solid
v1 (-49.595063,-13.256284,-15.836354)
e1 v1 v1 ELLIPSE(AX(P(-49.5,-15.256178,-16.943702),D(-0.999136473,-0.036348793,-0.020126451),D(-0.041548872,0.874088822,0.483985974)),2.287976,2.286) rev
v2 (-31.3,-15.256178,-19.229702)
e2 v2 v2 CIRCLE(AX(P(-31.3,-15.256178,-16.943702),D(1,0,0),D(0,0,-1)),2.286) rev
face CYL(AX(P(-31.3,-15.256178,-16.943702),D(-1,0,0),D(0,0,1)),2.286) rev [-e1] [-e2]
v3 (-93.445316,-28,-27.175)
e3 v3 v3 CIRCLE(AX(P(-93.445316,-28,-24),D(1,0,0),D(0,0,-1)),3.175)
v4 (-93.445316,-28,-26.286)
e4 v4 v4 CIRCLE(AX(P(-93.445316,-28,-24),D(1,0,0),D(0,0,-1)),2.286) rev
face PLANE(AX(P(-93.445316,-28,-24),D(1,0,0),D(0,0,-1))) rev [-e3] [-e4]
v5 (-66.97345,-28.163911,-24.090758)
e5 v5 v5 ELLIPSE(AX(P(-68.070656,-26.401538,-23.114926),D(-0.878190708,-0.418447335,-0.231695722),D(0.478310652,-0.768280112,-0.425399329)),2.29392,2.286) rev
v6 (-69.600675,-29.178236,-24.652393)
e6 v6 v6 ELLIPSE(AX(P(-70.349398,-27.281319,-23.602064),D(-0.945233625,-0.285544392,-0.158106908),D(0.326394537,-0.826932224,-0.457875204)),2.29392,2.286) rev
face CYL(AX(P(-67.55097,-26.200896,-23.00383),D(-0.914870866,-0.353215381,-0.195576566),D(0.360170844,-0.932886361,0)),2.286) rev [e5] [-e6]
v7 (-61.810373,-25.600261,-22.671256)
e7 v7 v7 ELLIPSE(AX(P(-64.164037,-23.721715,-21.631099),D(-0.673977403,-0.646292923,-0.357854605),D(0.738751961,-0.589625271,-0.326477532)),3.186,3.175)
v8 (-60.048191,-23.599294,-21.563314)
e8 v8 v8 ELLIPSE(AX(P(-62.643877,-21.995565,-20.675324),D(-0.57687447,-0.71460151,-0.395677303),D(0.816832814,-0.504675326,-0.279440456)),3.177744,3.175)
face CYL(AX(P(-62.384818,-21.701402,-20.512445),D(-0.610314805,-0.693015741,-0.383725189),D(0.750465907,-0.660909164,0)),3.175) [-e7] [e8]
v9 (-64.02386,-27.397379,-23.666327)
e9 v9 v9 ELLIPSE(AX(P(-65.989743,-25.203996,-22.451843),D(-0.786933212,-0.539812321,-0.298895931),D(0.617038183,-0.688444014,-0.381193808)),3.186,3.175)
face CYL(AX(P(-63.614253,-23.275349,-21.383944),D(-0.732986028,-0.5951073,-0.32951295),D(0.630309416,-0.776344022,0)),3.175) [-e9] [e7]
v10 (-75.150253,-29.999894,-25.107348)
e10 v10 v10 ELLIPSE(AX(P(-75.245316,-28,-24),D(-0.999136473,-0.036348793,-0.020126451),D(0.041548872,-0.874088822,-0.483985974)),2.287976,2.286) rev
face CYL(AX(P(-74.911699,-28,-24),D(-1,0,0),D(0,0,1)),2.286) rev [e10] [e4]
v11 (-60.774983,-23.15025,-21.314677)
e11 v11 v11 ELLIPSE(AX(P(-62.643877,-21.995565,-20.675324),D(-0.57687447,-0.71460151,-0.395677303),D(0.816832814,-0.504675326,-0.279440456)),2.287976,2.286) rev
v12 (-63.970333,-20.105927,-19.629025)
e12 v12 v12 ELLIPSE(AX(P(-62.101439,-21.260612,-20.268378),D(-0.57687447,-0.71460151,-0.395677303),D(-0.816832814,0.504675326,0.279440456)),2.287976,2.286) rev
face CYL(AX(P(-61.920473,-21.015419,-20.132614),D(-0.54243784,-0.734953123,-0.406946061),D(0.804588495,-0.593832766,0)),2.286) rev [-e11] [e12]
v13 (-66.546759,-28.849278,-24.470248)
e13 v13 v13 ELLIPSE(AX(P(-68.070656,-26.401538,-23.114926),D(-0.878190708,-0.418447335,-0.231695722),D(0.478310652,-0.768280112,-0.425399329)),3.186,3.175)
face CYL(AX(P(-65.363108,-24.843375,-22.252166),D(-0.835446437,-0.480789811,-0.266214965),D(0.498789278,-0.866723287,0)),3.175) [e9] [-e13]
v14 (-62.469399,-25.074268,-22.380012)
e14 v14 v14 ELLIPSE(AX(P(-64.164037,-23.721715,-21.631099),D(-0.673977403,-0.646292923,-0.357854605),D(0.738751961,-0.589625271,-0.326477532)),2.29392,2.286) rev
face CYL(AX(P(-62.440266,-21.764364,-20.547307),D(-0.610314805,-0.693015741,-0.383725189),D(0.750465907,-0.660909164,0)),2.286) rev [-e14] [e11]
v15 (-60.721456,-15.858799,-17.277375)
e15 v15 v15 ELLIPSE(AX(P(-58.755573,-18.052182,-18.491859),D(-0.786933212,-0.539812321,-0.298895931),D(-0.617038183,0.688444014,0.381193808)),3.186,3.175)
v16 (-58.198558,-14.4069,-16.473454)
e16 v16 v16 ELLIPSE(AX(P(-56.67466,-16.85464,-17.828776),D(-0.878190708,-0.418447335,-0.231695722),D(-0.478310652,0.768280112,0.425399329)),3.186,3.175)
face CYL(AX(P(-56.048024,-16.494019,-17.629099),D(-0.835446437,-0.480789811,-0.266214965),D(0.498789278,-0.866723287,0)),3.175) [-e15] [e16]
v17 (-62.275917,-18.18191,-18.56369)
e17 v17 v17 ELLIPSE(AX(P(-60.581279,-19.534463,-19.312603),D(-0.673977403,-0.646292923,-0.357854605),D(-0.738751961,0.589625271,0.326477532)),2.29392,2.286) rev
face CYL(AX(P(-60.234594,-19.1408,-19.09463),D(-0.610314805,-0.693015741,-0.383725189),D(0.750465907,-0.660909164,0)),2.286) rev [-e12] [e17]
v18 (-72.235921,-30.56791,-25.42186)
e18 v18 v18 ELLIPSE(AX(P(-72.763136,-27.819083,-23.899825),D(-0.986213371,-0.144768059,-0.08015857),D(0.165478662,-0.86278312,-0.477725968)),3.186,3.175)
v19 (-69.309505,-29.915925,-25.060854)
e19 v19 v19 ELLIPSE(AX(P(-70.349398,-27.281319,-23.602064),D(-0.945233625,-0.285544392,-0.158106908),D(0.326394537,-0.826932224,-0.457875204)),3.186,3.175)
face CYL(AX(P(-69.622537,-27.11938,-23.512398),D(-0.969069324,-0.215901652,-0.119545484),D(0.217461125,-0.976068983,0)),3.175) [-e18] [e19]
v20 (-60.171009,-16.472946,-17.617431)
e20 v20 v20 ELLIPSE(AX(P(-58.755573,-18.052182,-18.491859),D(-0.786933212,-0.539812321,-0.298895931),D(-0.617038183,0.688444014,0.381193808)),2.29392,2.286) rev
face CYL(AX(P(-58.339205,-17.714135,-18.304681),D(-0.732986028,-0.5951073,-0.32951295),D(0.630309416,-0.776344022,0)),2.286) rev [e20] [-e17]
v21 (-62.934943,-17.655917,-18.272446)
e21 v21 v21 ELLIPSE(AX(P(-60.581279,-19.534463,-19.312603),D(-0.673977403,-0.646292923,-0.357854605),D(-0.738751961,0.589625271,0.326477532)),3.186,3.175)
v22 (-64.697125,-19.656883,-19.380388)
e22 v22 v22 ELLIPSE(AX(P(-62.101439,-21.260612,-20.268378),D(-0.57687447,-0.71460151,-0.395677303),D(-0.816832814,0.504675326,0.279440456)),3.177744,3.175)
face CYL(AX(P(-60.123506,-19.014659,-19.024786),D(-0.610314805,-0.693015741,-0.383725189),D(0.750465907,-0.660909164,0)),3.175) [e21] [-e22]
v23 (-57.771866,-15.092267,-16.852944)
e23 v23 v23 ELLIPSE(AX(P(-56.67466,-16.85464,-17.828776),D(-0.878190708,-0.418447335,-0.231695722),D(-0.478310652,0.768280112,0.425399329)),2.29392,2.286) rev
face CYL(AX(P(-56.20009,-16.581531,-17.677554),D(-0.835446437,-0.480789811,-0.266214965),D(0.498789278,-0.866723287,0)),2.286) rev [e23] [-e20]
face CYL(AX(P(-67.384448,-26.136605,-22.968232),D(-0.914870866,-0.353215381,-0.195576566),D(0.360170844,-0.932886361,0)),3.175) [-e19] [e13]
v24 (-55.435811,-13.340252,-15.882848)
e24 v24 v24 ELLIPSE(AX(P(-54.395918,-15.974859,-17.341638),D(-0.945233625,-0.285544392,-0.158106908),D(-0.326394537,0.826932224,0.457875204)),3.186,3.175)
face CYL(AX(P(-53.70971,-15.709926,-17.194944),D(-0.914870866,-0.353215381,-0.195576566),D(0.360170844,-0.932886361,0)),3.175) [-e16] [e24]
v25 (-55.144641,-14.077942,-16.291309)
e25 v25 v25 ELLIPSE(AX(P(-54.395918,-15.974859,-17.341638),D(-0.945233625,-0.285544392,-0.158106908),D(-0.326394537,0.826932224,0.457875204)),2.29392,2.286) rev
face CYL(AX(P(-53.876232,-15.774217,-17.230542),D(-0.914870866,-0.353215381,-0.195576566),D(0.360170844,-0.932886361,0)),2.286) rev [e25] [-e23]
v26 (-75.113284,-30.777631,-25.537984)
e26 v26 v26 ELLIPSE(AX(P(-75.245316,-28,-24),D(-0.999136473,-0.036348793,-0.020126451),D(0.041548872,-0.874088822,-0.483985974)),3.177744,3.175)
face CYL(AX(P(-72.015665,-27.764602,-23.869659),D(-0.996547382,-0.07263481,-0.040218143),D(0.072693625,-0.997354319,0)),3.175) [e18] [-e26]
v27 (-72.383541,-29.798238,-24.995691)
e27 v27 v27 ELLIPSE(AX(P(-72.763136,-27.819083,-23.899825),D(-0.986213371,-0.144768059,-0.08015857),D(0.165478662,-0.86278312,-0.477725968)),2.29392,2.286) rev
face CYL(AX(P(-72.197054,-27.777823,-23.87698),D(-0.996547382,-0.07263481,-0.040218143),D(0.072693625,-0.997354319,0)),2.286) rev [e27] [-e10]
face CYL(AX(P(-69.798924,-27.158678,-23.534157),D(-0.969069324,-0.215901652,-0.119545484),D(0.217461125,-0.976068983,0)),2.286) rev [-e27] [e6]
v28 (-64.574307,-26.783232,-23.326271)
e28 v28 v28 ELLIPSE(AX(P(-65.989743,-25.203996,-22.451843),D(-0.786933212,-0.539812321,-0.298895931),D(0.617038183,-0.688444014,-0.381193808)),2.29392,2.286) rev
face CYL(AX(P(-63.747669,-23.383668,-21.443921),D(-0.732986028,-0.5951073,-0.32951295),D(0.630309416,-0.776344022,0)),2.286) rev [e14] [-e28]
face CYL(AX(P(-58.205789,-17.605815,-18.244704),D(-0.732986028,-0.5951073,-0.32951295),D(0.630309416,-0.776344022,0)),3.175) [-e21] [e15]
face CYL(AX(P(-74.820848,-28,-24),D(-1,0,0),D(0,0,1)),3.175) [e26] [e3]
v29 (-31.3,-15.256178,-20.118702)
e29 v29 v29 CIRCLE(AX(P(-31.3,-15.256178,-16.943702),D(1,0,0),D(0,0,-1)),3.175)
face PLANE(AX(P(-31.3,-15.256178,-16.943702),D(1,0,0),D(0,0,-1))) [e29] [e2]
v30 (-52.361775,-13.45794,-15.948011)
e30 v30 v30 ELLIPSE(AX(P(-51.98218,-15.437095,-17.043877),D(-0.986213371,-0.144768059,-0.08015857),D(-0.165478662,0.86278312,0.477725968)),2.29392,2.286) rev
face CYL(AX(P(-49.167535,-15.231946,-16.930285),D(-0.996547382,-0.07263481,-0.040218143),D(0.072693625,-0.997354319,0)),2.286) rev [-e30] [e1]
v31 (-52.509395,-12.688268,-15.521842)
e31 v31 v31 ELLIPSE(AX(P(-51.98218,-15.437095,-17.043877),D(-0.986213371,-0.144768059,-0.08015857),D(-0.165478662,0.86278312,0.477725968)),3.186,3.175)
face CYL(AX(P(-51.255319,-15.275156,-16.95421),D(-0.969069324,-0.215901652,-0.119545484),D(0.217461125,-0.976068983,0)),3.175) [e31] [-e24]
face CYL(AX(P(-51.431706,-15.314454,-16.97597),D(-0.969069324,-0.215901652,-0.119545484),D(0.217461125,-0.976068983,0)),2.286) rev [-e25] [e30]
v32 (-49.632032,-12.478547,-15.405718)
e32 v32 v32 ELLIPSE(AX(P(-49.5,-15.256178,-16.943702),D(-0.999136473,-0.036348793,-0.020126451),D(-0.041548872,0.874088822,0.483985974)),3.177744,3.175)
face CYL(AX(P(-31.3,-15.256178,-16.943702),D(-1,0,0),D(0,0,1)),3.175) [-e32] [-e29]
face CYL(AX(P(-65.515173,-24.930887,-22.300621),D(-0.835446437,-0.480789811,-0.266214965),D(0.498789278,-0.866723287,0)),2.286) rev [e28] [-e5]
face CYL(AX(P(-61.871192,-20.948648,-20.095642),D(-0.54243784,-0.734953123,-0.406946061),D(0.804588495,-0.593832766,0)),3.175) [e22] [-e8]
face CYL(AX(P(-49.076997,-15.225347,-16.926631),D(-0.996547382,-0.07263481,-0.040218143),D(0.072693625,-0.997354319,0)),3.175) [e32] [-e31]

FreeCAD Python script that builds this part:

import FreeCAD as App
import Part
import Sketcher
from FreeCAD import Vector
Q = App.Units.Quantity

doc = App.newDocument("Part")
body = doc.addObject("PartDesign::Body", "Body")

# Sketch on YZ plane
sketch1 = body.newObject("Sketcher::SketchObject", "Sketch")
sketch1.AttachmentSupport = (doc.getObject("YZ_Plane"), [""])
sketch1.MapMode = "FlatFace"
sketch1.AttachmentOffset = App.Placement(Vector(0, 0, -31.3), App.Rotation())
sketch1.addGeometry([
    Part.Circle(Vector(-15.3, -16.9, 0), Vector(0, 0, 1), 3.2),
    Part.Circle(Vector(-15.3, -16.9, 0), Vector(0, 0, 1), 2.3),
], False)
sketch1.addConstraint([
    Sketcher.Constraint("Coincident", 1, 3, 0, 3),
    Sketcher.Constraint("Diameter", 0, Q("6.35 mm")),
    Sketcher.Constraint("Diameter", 1, Q("4.572 mm")),
    Sketcher.Constraint("DistanceX", 0, 3, -1, 1, Q("15.256178 mm")),
    Sketcher.Constraint("DistanceY", 0, 3, -1, 1, Q("16.943702 mm")),
])

# Sketch on an angled plane
sketch2 = body.newObject("Sketcher::SketchObject", "Sketch001")
sketch2.Placement = App.Placement(Vector(0, 3.600549, -6.502668), App.Rotation(Vector(0, -0.874844274, -0.48440427), Vector(1.000000001, 0, 0), Vector(0, -0.48440427, 0.874844274), "ZXY"))
sketch2.addGeometry([
    Part.LineSegment(Vector(21.6, -31.3, 0), Vector(21.6, -49.5, 0)),  # 0
    Part.LineSegment(Vector(21.6, -49.5, 0), Vector(21.8, -52, 0)),  # 1
    Part.LineSegment(Vector(21.8, -52, 0), Vector(22.4, -54.4, 0)),  # 2
    Part.LineSegment(Vector(22.4, -54.4, 0), Vector(23.4, -56.7, 0)),  # 3
    Part.LineSegment(Vector(23.4, -56.7, 0), Vector(24.8, -58.8, 0)),  # 4
    Part.LineSegment(Vector(24.8, -58.8, 0), Vector(26.4, -60.6, 0)),  # 5
    Part.LineSegment(Vector(26.4, -60.6, 0), Vector(28.4, -62.1, 0)),  # 6
    Part.LineSegment(Vector(28.4, -62.1, 0), Vector(29.3, -62.6, 0)),  # 7
    Part.LineSegment(Vector(29.3, -62.6, 0), Vector(31.2, -64.2, 0)),  # 8
    Part.LineSegment(Vector(31.2, -64.2, 0), Vector(32.9, -66, 0)),  # 9
    Part.LineSegment(Vector(32.9, -66, 0), Vector(34.3, -68.1, 0)),  # 10
    Part.LineSegment(Vector(34.3, -68.1, 0), Vector(35.3, -70.3, 0)),  # 11
    Part.LineSegment(Vector(35.3, -70.3, 0), Vector(35.9, -72.8, 0)),  # 12
    Part.LineSegment(Vector(35.9, -72.8, 0), Vector(36.1, -75.2, 0)),  # 13
    Part.LineSegment(Vector(36.1, -75.2, 0), Vector(36.1, -93.4, 0)),  # 14
], False)
sketch2.addConstraint([
    Sketcher.Constraint("Coincident", 0, 2, 1, 1),
    Sketcher.Constraint("Coincident", 1, 2, 2, 1),
    Sketcher.Constraint("Coincident", 2, 2, 3, 1),
    Sketcher.Constraint("Coincident", 3, 2, 4, 1),
    Sketcher.Constraint("Coincident", 4, 2, 5, 1),
    Sketcher.Constraint("Coincident", 5, 2, 6, 1),
    Sketcher.Constraint("Coincident", 6, 2, 7, 1),
    Sketcher.Constraint("Coincident", 7, 2, 8, 1),
    Sketcher.Constraint("Coincident", 8, 2, 9, 1),
    Sketcher.Constraint("Coincident", 9, 2, 10, 1),
    Sketcher.Constraint("Coincident", 10, 2, 11, 1),
    Sketcher.Constraint("Coincident", 11, 2, 12, 1),
    Sketcher.Constraint("Coincident", 12, 2, 13, 1),
    Sketcher.Constraint("Coincident", 13, 2, 14, 1),
    Sketcher.Constraint("Vertical", 0),
    Sketcher.Constraint("Vertical", 14),
    Sketcher.Constraint("Parallel", 6, 8),
    Sketcher.Constraint("Parallel", 5, 9),
    Sketcher.Constraint("Parallel", 4, 10),
    Sketcher.Constraint("Parallel", 3, 11),
    Sketcher.Constraint("Parallel", 2, 12),
    Sketcher.Constraint("Parallel", 1, 13),
    Sketcher.Constraint("Equal", 0, 14),
    Sketcher.Constraint("Equal", 1, 2),
    Sketcher.Constraint("Equal", 2, 3),
    Sketcher.Constraint("Equal", 3, 4),
    Sketcher.Constraint("Equal", 4, 5),
    Sketcher.Constraint("Equal", 5, 6),
    Sketcher.Constraint("Equal", 6, 8),
    Sketcher.Constraint("Equal", 8, 9),
    Sketcher.Constraint("Equal", 9, 10),
    Sketcher.Constraint("Equal", 10, 11),
    Sketcher.Constraint("Equal", 11, 12),
    Sketcher.Constraint("Equal", 12, 13),
    Sketcher.Constraint("Distance", 7, Q("1 mm")),
    Sketcher.Constraint("DistanceY", 0, 2, 0, 1, Q("18.2 mm")),
    Sketcher.Constraint("DistanceY", 0, 1, -1, 1, Q("31.3 mm")),
    Sketcher.Constraint("DistanceX", 0, 2, 4, 2, Q("3.196002 mm")),
    Sketcher.Constraint("DistanceY", 11, 2, -1, 1, Q("70.349398 mm")),
    Sketcher.Constraint("DistanceX", 0, 2, 1, 2, Q("0.206799 mm")),
    Sketcher.Constraint("DistanceX", 3, 2, 5, 2, Q("3.0632 mm")),
    Sketcher.Constraint("DistanceY", 5, 2, 1, 2, Q("8.5991 mm")),
    Sketcher.Constraint("Distance", 1, Q("2.49078 mm")),
    Sketcher.Constraint("DistanceX", -1, 1, 0, 1, Q("21.554381 mm")),
    Sketcher.Constraint("DistanceY", 2, 2, -1, 1, Q("54.395918 mm")),
    Sketcher.Constraint("DistanceY", 6, 2, -1, 1, Q("62.101439 mm")),
])
doc.recompute()

additivepipe = body.newObject("PartDesign::AdditivePipe", "AdditivePipe")
additivepipe.Profile = sketch1
additivepipe.Spine = (sketch2, ["Edge1", "Edge2", "Edge3", "Edge4", "Edge5", "Edge6", "Edge7", "Edge8", "Edge9", "Edge10", "Edge11", "Edge12", "Edge13", "Edge14", "Edge15"])
additivepipe.Transition = "Right corner"

doc.recompute()
